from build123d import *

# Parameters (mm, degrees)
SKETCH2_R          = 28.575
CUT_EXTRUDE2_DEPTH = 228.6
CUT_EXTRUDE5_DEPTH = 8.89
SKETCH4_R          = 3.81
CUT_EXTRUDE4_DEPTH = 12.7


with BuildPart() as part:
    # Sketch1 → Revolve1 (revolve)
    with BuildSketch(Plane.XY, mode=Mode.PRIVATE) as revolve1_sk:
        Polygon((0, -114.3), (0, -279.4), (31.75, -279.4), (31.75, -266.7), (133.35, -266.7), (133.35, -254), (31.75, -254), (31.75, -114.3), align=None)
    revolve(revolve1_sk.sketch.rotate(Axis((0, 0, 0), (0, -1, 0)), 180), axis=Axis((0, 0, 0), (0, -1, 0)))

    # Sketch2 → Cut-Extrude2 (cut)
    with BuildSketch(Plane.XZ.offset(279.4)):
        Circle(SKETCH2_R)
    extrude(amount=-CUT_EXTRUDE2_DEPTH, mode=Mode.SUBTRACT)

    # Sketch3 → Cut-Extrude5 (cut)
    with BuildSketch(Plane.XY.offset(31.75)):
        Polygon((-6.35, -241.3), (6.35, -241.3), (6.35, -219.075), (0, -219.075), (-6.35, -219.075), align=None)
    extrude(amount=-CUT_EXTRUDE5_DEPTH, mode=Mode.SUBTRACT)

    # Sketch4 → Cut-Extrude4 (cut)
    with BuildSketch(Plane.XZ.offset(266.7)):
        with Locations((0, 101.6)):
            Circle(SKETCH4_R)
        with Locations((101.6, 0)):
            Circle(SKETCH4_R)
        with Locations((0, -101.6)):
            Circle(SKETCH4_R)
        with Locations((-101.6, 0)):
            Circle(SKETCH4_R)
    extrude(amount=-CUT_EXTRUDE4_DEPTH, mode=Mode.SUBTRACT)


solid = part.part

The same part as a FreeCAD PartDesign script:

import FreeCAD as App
import Part
import Sketcher

V = App.Vector
Q = App.Units.Quantity

doc = App.newDocument("Part")
body = doc.addObject("PartDesign::Body", "Body")

# Sketch on XY plane
sketch1 = body.newObject("Sketcher::SketchObject", "Sketch")
sketch1.AttachmentSupport = (doc.getObject("XY_Plane"), [""])
sketch1.MapMode = "FlatFace"
sketch1.addGeometry(Part.LineSegment(V(0, -114, 0), V(0, -279, 0)), False)
sketch1.addGeometry(Part.LineSegment(V(0, -279, 0), V(32, -279, 0)), False)
sketch1.addGeometry(Part.LineSegment(V(32, -279, 0), V(32, -267, 0)), False)
sketch1.addGeometry(Part.LineSegment(V(32, -267, 0), V(133, -267, 0)), False)
sketch1.addGeometry(Part.LineSegment(V(133, -267, 0), V(133, -254, 0)), False)
sketch1.addGeometry(Part.LineSegment(V(133, -254, 0), V(32, -254, 0)), False)
sketch1.addGeometry(Part.LineSegment(V(32, -254, 0), V(32, -114, 0)), False)
sketch1.addGeometry(Part.LineSegment(V(32, -114, 0), V(0, -114, 0)), False)
sketch1.addConstraint(Sketcher.Constraint("Coincident", 0, 2, 1, 1))
sketch1.addConstraint(Sketcher.Constraint("Coincident", 1, 2, 2, 1))
sketch1.addConstraint(Sketcher.Constraint("Coincident", 2, 2, 3, 1))
sketch1.addConstraint(Sketcher.Constraint("Coincident", 3, 2, 4, 1))
sketch1.addConstraint(Sketcher.Constraint("Coincident", 4, 2, 5, 1))
sketch1.addConstraint(Sketcher.Constraint("Coincident", 5, 2, 6, 1))
sketch1.addConstraint(Sketcher.Constraint("Coincident", 6, 2, 7, 1))
sketch1.addConstraint(Sketcher.Constraint("Coincident", 7, 2, 0, 1))
sketch1.addConstraint(Sketcher.Constraint("Vertical", 0))
sketch1.addConstraint(Sketcher.Constraint("Horizontal", 1))
sketch1.addConstraint(Sketcher.Constraint("Vertical", 2))
sketch1.addConstraint(Sketcher.Constraint("Horizontal", 3))
sketch1.addConstraint(Sketcher.Constraint("Vertical", 4))
sketch1.addConstraint(Sketcher.Constraint("Horizontal", 5))
sketch1.addConstraint(Sketcher.Constraint("Vertical", 6))
sketch1.addConstraint(Sketcher.Constraint("Horizontal", 7))
sketch1.addConstraint(Sketcher.Constraint("PointOnObject", 0, 2, -2))
sketch1.addConstraint(Sketcher.Constraint("Vertical", 2, 2, 5, 2))
sketch1.addConstraint(Sketcher.Constraint("Equal", 2, 4))
sketch1.addConstraint(Sketcher.Constraint("DistanceX", 3, 1, 3, 2, Q("4 in")))
sketch1.addConstraint(Sketcher.Constraint("DistanceY", 0, 2, 0, 1, Q("6.5 in")))
sketch1.addConstraint(Sketcher.Constraint("DistanceY", 2, 1, 2, 2, Q("0.5 in")))
sketch1.addConstraint(Sketcher.Constraint("DistanceY", 0, 2, -1, 1, Q("11 in")))
sketch1.addConstraint(Sketcher.Constraint("DistanceX", 1, 1, 1, 2, Q("1.25 in")))
revolution = body.newObject("PartDesign::Revolution", "Revolution")
revolution.Profile = sketch1
revolution.ReferenceAxis = (sketch1, ["V_Axis"])
revolution.Angle = 360

# Sketch on XZ plane
sketch2 = body.newObject("Sketcher::SketchObject", "Sketch001")
sketch2.AttachmentSupport = (doc.getObject("XZ_Plane"), [""])
sketch2.MapMode = "FlatFace"
sketch2.AttachmentOffset = App.Placement(V(0, 0, 11 * 25.4), App.Rotation())
sketch2.addGeometry(Part.Circle(V(0, 0, 0), V(0, 0, 1), 29), False)
sketch2.addConstraint(Sketcher.Constraint("Coincident", 0, 3, -1, 1))
sketch2.addConstraint(Sketcher.Constraint("Diameter", 0, Q("2.25 in")))
pocket1 = body.newObject("PartDesign::Pocket", "Pocket")
pocket1.Profile = sketch2
pocket1.Length = Q("9 in")

# Sketch on XY plane
sketch3 = body.newObject("Sketcher::SketchObject", "Sketch002")
sketch3.AttachmentSupport = (doc.getObject("XY_Plane"), [""])
sketch3.MapMode = "FlatFace"
sketch3.AttachmentOffset = App.Placement(V(0, 0, 1.25 * 25.4), App.Rotation())
sketch3.addGeometry(Part.LineSegment(V(-6, -241, 0), V(6, -241, 0)), False)
sketch3.addGeometry(Part.LineSegment(V(6, -241, 0), V(6, -219, 0)), False)
sketch3.addGeometry(Part.LineSegment(V(6, -219, 0), V(-6, -219, 0)), False)
sketch3.addGeometry(Part.LineSegment(V(-6, -219, 0), V(-6, -241, 0)), False)
sketch3.addConstraint(Sketcher.Constraint("Coincident", 0, 2, 1, 1))
sketch3.addConstraint(Sketcher.Constraint("Coincident", 1, 2, 2, 1))
sketch3.addConstraint(Sketcher.Constraint("Coincident", 2, 2, 3, 1))
sketch3.addConstraint(Sketcher.Constraint("Coincident", 3, 2, 0, 1))
sketch3.addConstraint(Sketcher.Constraint("Horizontal", 0))
sketch3.addConstraint(Sketcher.Constraint("Vertical", 1))
sketch3.addConstraint(Sketcher.Constraint("Horizontal", 2))
sketch3.addConstraint(Sketcher.Constraint("Vertical", 3))
sketch3.addConstraint(Sketcher.Constraint("DistanceX", 0, 1, 0, 2, Q("0.5 in")))
sketch3.addConstraint(Sketcher.Constraint("DistanceY", 0, 2, -1, 1, Q("9.5 in")))
sketch3.addConstraint(Sketcher.Constraint("DistanceY", 1, 1, 1, 2, Q("0.875 in")))
sketch3.addConstraint(Sketcher.Constraint("DistanceX", -1, 1, 0, 2, Q("0.25 in")))
pocket2 = body.newObject("PartDesign::Pocket", "Pocket001")
pocket2.Profile = sketch3
pocket2.Length = Q("0.35 in")

# Sketch on XZ plane
sketch4 = body.newObject("Sketcher::SketchObject", "Sketch003")
sketch4.AttachmentSupport = (doc.getObject("XZ_Plane"), [""])
sketch4.MapMode = "FlatFace"
sketch4.AttachmentOffset = App.Placement(V(0, 0, 10.5 * 25.4), App.Rotation())
sketch4.addGeometry(Part.Circle(V(0, 101.6, 0), V(0, 0, 1), 3.8), False)
sketch4.addGeometry(Part.Circle(V(101.6, 0, 0), V(0, 0, 1), 3.8), False)
sketch4.addGeometry(Part.Circle(V(0, -101.6, 0), V(0, 0, 1), 3.8), False)
sketch4.addGeometry(Part.Circle(V(-101.6, 0, 0), V(0, 0, 1), 3.8), False)
sketch4.addConstraint(Sketcher.Constraint("Equal", 0, 1))
sketch4.addConstraint(Sketcher.Constraint("Equal", 1, 2))
sketch4.addConstraint(Sketcher.Constraint("Equal", 2, 3))
sketch4.addConstraint(Sketcher.Constraint("Symmetric", 0, 3, 2, 3, -1, 1))
sketch4.addConstraint(Sketcher.Constraint("Symmetric", 1, 3, 3, 3, -1, 1))
sketch4.addConstraint(Sketcher.Constraint("PointOnObject", 0, 3, -2))
sketch4.addConstraint(Sketcher.Constraint("PointOnObject", 1, 3, -1))
sketch4.addConstraint(Sketcher.Constraint("Diameter", 0, Q("0.3 in")))
sketch4.addConstraint(Sketcher.Constraint("DistanceY", -1, 1, 0, 3, Q("4 in")))
sketch4.addConstraint(Sketcher.Constraint("DistanceX", -1, 1, 1, 3, Q("4 in")))
pocket3 = body.newObject("PartDesign::Pocket", "Pocket002")
pocket3.Profile = sketch4
pocket3.Length = Q("0.5 in")

doc.recompute()
